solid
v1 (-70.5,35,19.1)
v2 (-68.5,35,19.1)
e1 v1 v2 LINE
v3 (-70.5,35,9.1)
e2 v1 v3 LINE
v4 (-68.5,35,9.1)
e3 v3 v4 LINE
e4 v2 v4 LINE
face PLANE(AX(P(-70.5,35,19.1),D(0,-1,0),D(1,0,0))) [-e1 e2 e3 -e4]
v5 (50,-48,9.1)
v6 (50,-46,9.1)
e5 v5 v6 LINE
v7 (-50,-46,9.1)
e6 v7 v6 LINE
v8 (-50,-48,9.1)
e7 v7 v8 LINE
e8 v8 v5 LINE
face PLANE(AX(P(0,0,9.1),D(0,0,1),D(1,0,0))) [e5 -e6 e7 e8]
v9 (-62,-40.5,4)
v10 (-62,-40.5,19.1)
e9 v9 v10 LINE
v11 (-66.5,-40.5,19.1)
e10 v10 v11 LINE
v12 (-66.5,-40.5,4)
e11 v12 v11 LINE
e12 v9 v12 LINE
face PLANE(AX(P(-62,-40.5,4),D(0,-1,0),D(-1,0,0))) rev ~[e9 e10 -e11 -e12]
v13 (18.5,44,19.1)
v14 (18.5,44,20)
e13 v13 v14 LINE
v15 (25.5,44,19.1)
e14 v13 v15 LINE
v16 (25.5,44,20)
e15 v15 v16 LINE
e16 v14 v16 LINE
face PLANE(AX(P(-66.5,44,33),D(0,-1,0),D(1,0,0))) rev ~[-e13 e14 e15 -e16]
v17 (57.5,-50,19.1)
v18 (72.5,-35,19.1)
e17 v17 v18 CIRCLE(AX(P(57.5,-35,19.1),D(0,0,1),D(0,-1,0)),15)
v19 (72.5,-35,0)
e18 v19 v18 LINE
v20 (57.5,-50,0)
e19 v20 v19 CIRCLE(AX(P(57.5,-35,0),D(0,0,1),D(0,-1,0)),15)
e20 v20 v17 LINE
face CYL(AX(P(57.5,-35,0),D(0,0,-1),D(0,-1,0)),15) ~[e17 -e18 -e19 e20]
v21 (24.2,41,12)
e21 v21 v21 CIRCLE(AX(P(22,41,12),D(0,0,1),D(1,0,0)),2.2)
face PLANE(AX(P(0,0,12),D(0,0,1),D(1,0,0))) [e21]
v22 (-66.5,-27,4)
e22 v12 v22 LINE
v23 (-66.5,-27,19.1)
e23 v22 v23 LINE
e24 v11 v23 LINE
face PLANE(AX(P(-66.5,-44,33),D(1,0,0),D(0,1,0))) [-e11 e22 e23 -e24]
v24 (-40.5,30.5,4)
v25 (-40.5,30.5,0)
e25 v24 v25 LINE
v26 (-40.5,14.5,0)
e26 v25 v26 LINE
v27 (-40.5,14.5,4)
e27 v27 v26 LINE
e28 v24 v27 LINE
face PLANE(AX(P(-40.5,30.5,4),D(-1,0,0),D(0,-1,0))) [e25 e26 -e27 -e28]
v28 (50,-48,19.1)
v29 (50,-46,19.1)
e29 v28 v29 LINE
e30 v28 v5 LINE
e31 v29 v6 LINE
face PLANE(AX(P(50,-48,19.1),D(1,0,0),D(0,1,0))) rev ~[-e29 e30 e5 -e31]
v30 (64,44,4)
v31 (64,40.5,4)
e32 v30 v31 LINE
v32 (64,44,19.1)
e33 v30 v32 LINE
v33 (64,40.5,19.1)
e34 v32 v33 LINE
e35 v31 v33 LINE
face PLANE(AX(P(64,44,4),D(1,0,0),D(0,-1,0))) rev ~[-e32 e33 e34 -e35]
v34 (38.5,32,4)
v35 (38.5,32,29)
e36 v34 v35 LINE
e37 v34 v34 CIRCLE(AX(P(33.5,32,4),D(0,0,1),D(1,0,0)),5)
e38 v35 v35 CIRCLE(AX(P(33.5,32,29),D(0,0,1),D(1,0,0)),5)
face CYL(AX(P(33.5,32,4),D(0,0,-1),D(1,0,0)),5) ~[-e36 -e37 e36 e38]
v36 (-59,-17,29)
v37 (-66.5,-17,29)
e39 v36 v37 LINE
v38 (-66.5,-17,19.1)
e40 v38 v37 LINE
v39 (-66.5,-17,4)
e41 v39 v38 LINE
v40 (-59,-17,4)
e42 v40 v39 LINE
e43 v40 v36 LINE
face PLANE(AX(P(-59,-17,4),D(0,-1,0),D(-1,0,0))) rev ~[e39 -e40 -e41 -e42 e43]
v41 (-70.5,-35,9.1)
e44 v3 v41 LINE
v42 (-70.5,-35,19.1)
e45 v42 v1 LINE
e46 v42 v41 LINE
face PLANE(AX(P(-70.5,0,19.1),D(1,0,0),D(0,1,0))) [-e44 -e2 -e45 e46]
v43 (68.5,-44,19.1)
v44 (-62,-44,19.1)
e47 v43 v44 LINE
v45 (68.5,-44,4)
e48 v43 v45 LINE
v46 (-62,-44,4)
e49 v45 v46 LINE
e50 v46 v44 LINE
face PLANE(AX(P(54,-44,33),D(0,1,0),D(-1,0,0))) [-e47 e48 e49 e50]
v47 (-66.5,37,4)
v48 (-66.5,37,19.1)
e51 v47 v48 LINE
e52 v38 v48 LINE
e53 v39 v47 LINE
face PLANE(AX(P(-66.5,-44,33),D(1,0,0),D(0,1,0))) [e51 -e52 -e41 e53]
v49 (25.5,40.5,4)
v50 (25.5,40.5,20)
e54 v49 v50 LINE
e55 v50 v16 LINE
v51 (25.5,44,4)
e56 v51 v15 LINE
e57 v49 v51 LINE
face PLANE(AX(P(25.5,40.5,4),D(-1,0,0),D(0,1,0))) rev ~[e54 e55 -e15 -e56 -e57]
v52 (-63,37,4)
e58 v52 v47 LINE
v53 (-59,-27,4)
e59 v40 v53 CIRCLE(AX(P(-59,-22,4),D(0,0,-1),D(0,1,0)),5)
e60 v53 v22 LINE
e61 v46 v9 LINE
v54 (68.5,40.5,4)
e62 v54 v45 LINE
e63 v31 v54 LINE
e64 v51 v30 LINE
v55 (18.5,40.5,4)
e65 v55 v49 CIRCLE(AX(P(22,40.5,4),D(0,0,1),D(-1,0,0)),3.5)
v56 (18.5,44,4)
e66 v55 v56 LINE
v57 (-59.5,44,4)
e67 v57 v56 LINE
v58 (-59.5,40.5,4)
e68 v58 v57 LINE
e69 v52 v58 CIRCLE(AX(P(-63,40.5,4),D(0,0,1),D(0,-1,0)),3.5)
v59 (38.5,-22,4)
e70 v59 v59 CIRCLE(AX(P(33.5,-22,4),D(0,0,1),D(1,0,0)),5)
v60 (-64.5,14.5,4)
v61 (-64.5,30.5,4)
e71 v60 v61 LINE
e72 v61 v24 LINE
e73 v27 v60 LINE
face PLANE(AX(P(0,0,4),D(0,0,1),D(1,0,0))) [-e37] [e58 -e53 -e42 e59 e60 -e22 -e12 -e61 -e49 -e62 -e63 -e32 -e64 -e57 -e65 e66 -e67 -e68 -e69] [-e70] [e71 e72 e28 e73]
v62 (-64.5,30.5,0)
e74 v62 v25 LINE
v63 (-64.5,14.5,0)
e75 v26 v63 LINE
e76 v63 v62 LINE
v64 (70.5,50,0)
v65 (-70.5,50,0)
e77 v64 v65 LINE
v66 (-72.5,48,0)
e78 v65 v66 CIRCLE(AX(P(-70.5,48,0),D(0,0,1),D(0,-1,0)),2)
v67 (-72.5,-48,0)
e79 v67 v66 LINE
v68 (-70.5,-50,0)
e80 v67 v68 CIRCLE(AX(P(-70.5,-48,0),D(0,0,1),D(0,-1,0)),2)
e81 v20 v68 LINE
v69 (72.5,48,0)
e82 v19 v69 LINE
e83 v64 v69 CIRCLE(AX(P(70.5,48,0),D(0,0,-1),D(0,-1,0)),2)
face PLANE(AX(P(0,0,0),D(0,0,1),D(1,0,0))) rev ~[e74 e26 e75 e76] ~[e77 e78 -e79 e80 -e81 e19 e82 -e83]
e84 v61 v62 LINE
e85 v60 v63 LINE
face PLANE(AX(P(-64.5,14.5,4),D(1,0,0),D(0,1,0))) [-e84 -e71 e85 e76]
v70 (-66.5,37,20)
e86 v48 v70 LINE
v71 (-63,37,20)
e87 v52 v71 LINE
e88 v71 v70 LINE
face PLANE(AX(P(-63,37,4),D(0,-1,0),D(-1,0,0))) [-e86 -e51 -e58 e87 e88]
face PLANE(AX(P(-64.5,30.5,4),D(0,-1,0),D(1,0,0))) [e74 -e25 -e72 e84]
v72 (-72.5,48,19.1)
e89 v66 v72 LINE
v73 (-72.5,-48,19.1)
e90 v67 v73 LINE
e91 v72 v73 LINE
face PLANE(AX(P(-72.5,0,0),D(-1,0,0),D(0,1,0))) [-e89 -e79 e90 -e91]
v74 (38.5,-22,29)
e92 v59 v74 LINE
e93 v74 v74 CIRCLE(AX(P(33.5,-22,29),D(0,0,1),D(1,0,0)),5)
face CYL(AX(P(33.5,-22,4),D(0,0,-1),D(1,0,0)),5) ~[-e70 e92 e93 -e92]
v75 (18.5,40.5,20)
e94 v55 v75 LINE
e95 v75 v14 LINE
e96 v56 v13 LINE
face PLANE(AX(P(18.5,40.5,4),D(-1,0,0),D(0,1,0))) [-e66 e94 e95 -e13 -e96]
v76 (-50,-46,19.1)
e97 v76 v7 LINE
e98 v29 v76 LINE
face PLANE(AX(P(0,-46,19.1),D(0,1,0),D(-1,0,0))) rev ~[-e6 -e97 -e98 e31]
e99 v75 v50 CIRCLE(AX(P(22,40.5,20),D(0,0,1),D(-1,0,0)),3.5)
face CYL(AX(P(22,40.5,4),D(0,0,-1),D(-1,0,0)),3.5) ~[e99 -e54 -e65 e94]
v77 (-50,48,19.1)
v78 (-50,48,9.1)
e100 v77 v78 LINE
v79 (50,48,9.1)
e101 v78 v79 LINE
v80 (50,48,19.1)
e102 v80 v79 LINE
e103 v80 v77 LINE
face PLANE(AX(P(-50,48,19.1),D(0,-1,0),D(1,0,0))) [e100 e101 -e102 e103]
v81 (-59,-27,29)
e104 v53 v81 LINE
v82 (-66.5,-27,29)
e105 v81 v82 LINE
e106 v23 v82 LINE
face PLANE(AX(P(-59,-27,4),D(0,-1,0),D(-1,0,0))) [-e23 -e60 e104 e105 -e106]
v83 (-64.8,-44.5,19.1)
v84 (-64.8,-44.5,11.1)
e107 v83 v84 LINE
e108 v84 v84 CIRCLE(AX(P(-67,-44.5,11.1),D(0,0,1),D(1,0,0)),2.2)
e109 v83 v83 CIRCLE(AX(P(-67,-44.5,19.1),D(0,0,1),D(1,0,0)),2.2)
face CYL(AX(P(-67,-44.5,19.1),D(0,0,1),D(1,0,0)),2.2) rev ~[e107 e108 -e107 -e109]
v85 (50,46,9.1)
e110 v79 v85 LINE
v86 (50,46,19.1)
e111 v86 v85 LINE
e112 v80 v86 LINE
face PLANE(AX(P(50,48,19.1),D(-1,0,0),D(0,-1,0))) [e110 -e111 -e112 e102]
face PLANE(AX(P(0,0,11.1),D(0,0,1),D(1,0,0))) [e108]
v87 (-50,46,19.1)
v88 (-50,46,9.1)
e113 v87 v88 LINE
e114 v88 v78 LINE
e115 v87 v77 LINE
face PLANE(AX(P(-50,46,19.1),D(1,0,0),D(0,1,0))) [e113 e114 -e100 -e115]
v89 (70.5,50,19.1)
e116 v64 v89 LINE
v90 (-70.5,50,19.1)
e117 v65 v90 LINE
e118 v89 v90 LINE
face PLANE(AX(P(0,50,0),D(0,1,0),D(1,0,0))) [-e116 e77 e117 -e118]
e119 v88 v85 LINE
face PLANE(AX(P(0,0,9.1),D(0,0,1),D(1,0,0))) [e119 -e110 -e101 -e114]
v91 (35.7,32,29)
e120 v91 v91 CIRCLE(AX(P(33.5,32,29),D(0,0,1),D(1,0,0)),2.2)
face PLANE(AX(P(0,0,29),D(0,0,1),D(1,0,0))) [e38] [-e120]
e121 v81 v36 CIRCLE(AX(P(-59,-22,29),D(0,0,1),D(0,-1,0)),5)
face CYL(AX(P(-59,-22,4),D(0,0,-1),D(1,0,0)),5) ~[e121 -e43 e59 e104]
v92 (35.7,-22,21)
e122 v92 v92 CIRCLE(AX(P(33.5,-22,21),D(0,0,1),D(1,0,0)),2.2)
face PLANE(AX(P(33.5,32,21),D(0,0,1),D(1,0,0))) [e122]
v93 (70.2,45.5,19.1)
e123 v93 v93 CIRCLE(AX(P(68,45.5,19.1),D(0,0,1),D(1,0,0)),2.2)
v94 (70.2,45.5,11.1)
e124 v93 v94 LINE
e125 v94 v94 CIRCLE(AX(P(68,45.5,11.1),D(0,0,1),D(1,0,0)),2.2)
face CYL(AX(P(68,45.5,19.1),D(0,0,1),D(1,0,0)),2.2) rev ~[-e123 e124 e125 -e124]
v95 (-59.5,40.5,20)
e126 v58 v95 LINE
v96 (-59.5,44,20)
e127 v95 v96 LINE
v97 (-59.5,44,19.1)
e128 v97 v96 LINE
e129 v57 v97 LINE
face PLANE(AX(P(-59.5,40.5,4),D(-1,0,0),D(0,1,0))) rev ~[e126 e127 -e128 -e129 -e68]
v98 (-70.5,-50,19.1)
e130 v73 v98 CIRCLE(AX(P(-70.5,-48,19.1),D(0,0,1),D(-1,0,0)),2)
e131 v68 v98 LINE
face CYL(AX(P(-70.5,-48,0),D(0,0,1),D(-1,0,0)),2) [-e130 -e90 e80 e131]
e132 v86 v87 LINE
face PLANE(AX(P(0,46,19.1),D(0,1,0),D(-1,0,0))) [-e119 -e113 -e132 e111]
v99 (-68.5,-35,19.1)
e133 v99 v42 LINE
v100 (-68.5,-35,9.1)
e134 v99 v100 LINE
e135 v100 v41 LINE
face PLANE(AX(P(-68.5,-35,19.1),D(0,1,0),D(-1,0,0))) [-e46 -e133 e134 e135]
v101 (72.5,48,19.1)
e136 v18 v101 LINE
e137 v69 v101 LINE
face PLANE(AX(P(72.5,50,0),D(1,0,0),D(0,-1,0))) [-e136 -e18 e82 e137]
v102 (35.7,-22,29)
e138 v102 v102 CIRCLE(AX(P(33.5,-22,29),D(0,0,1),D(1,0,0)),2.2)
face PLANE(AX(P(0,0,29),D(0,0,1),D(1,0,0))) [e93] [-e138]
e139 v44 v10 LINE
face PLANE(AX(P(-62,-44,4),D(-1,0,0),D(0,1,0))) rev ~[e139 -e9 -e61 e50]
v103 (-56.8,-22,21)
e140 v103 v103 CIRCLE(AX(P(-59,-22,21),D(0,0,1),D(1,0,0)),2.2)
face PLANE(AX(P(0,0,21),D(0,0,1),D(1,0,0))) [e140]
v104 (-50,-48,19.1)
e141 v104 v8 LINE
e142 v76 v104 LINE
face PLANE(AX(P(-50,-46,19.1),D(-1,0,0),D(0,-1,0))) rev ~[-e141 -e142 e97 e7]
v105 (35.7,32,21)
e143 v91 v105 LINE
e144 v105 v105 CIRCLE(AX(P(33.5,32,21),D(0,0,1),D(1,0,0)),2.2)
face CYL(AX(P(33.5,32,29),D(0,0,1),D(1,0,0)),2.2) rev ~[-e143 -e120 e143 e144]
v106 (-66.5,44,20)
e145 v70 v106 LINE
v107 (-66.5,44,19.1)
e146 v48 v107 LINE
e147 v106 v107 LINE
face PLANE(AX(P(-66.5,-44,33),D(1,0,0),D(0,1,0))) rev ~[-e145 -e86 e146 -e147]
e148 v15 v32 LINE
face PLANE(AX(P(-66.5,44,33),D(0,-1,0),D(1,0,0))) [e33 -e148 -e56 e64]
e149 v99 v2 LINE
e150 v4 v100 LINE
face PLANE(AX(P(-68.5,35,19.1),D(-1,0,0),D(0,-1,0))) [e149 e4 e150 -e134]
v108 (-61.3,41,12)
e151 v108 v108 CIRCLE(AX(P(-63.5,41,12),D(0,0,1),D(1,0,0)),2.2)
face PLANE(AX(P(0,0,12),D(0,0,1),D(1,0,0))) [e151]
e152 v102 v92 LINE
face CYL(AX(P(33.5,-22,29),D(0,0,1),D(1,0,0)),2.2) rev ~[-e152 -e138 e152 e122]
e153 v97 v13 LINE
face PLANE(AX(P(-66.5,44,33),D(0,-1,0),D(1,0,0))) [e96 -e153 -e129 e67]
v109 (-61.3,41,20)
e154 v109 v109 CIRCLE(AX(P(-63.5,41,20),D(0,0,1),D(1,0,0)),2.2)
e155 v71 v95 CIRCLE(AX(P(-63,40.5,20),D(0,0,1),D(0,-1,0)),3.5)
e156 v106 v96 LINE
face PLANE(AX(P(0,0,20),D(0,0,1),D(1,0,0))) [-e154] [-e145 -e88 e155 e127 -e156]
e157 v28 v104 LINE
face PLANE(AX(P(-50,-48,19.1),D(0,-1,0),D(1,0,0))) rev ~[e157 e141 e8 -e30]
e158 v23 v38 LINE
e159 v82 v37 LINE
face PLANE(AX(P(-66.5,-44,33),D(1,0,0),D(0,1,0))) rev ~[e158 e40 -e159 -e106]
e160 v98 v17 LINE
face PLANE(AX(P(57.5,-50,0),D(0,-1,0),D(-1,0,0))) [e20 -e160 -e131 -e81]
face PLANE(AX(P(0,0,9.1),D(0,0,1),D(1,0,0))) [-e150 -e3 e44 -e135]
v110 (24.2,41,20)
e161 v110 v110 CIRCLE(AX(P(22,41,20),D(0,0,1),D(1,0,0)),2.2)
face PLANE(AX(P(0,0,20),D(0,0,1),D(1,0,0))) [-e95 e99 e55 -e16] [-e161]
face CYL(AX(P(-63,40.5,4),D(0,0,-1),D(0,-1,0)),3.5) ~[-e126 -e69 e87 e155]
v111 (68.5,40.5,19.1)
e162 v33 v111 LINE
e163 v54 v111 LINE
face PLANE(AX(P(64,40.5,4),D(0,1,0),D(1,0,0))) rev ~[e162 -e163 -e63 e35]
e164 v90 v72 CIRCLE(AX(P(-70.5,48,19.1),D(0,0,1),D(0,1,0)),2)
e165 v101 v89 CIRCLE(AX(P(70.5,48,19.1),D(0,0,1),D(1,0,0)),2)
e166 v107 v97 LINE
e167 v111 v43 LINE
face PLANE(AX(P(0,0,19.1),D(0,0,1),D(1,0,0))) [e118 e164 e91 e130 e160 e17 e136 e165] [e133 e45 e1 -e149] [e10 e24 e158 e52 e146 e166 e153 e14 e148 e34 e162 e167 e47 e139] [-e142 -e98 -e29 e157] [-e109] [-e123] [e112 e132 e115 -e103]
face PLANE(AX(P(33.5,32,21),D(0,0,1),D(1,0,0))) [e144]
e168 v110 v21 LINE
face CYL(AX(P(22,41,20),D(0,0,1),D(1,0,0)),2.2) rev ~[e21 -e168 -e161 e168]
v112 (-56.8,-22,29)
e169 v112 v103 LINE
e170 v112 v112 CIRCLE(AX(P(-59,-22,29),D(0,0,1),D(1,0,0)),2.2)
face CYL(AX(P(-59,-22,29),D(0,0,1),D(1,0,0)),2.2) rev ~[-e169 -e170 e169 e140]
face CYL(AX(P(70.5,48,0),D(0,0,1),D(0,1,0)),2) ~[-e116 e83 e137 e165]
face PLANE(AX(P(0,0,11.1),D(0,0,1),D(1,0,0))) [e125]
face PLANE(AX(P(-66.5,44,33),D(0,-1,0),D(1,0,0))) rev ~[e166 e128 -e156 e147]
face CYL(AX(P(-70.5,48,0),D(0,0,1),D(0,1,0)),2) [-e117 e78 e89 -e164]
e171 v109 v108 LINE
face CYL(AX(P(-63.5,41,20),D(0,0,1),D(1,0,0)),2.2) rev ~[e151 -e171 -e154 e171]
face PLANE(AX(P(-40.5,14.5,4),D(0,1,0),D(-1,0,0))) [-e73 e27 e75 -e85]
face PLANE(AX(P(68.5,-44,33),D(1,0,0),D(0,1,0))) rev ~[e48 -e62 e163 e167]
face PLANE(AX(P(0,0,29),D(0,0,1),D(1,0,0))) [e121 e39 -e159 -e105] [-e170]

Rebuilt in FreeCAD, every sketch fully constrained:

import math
import FreeCAD as App
import Part
import Sketcher


def edges_at(feature, points):
    """Names of the edges that pass closest to the given points."""
    edges = feature.Shape.Edges
    near = lambda p: min(range(len(edges)), key=lambda i: edges[i].distToShape(Part.Vertex(*p))[0])
    return sorted({f"Edge{near(p) + 1}" for p in points})


def add_polygon(sketch, points):
    """Adds a closed chain of lines whose ends are joined by coincident constraints."""
    first, n = sketch.GeometryCount, len(points)
    for a, b in zip(points, points[1:] + points[:1]):
        sketch.addGeometry(Part.LineSegment(App.Vector(*a, 0), App.Vector(*b, 0)), False)
    for i in range(n):
        sketch.addConstraint(Sketcher.Constraint("Coincident", first + i, 2, first + (i + 1) % n, 1))

doc = App.newDocument("Part")
body = doc.addObject("PartDesign::Body", "Body")

# Sketch on XY plane
sketch1 = body.newObject("Sketcher::SketchObject", "Sketch")
sketch1.AttachmentSupport = (doc.getObject("XY_Plane"), [""])
sketch1.MapMode = "FlatFace"
sketch1.addGeometry(Part.LineSegment(App.Vector(72, 50, 0), App.Vector(-72, 50, 0)), False)
sketch1.addGeometry(Part.LineSegment(App.Vector(-72, 50, 0), App.Vector(-72, -50, 0)), False)
sketch1.addGeometry(Part.LineSegment(App.Vector(-72, -50, 0), App.Vector(58, -50, 0)), False)
sketch1.addGeometry(Part.ArcOfCircle(Part.Circle(App.Vector(58, -35, 0), App.Vector(0, 0, 1), 15), math.radians(-90), math.radians(0)), False)
sketch1.addGeometry(Part.LineSegment(App.Vector(72, -35, 0), App.Vector(72, 50, 0)), False)
sketch1.addConstraint(Sketcher.Constraint("Coincident", 0, 2, 1, 1))
sketch1.addConstraint(Sketcher.Constraint("Coincident", 1, 2, 2, 1))
sketch1.addConstraint(Sketcher.Constraint("Tangent", 2, 2, 3, 1))
sketch1.addConstraint(Sketcher.Constraint("Tangent", 3, 2, 4, 1))
sketch1.addConstraint(Sketcher.Constraint("Coincident", 4, 2, 0, 1))
sketch1.addConstraint(Sketcher.Constraint("Horizontal", 0))
sketch1.addConstraint(Sketcher.Constraint("Vertical", 1))
sketch1.addConstraint(Sketcher.Constraint("Horizontal", 2))
sketch1.addConstraint(Sketcher.Constraint("Vertical", 4))
sketch1.addConstraint(Sketcher.Constraint("Symmetric", 1, 2, 4, 2, -1, 1))
sketch1.addConstraint(Sketcher.Constraint("Radius", 3, 15.0))
sketch1.addConstraint(Sketcher.Constraint("DistanceX", 2, 1, 2, 2, 130.0))
sketch1.addConstraint(Sketcher.Constraint("DistanceY", 1, 2, 1, 1, 100.0))
pad1 = body.newObject("PartDesign::Pad", "Pad")
pad1.Profile = sketch1
pad1.Length = 33

# Sketch on XY plane
sketch2 = body.newObject("Sketcher::SketchObject", "Sketch001")
sketch2.AttachmentSupport = (doc.getObject("XY_Plane"), [""])
sketch2.MapMode = "FlatFace"
sketch2.AttachmentOffset = App.Placement(App.Vector(0, 0, 33), App.Rotation())
add_polygon(sketch2, [(68, 44), (-66, 44), (-66, -44), (68, -44)])  # lines 0-3
sketch2.addConstraint(Sketcher.Constraint("Horizontal", 0))
sketch2.addConstraint(Sketcher.Constraint("Vertical", 1))
sketch2.addConstraint(Sketcher.Constraint("Horizontal", 2))
sketch2.addConstraint(Sketcher.Constraint("Vertical", 3))
sketch2.addConstraint(Sketcher.Constraint("DistanceX", 0, 2, 0, 1, 135.0))
sketch2.addConstraint(Sketcher.Constraint("DistanceY", 1, 2, 1, 1, 88.0))
sketch2.addConstraint(Sketcher.Constraint("DistanceY", -1, 1, 0, 2, 44.0))
sketch2.addConstraint(Sketcher.Constraint("DistanceX", 0, 2, -1, 1, 66.5))
pocket1 = body.newObject("PartDesign::Pocket", "Pocket")
pocket1.Profile = sketch2
pocket1.Length = 29
doc.recompute()

fillet = body.newObject("PartDesign::Fillet", "Fillet")
fillet.Base = (pocket1, edges_at(pocket1, [(72.5, 50, 16.5)]))
fillet.Radius = 2
doc.recompute()

fillet2 = body.newObject("PartDesign::Fillet", "Fillet001")
fillet2.Base = (fillet, edges_at(fillet, [(-72.5, 50, 16.5), (-72.5, -50, 16.5)]))
fillet2.Radius = 2

# Sketch on XY plane
sketch3 = body.newObject("Sketcher::SketchObject", "Sketch002")
sketch3.AttachmentSupport = (doc.getObject("XY_Plane"), [""])
sketch3.MapMode = "FlatFace"
sketch3.AttachmentOffset = App.Placement(App.Vector(0, 0, 4), App.Rotation())
sketch3.addGeometry(Part.LineSegment(App.Vector(25.5, 40.5, 0), App.Vector(25.5, 44, 0)), False)
sketch3.addGeometry(Part.LineSegment(App.Vector(25.5, 44, 0), App.Vector(18.5, 44, 0)), False)
sketch3.addGeometry(Part.LineSegment(App.Vector(18.5, 44, 0), App.Vector(18.5, 40.5, 0)), False)
sketch3.addGeometry(Part.ArcOfCircle(Part.Circle(App.Vector(22, 40.5, 0), App.Vector(0, 0, 1), 3.5), math.radians(180), math.radians(360)), False)
sketch3.addGeometry(Part.LineSegment(App.Vector(-59.5, 40.5, 0), App.Vector(-59.5, 44, 0)), False)
sketch3.addGeometry(Part.LineSegment(App.Vector(-59.5, 44, 0), App.Vector(-66.5, 44, 0)), False)
sketch3.addGeometry(Part.LineSegment(App.Vector(-66.5, 44, 0), App.Vector(-66.5, 37, 0)), False)
sketch3.addGeometry(Part.LineSegment(App.Vector(-66.5, 37, 0), App.Vector(-63, 37, 0)), False)
sketch3.addGeometry(Part.ArcOfCircle(Part.Circle(App.Vector(-63, 40.5, 0), App.Vector(0, 0, 1), 3.5), math.radians(-90), math.radians(0)), False)
sketch3.addConstraint(Sketcher.Constraint("Coincident", 0, 2, 1, 1))
sketch3.addConstraint(Sketcher.Constraint("Coincident", 1, 2, 2, 1))
sketch3.addConstraint(Sketcher.Constraint("Tangent", 2, 2, 3, 1))
sketch3.addConstraint(Sketcher.Constraint("Tangent", 3, 2, 0, 1))
sketch3.addConstraint(Sketcher.Constraint("Coincident", 4, 2, 5, 1))
sketch3.addConstraint(Sketcher.Constraint("Coincident", 5, 2, 6, 1))
sketch3.addConstraint(Sketcher.Constraint("Coincident", 6, 2, 7, 1))
sketch3.addConstraint(Sketcher.Constraint("Tangent", 7, 2, 8, 1))
sketch3.addConstraint(Sketcher.Constraint("Tangent", 8, 2, 4, 1))
sketch3.addConstraint(Sketcher.Constraint("Vertical", 0))
sketch3.addConstraint(Sketcher.Constraint("Horizontal", 1))
sketch3.addConstraint(Sketcher.Constraint("Vertical", 2))
sketch3.addConstraint(Sketcher.Constraint("Vertical", 4))
sketch3.addConstraint(Sketcher.Constraint("Horizontal", 5))
sketch3.addConstraint(Sketcher.Constraint("Vertical", 6))
sketch3.addConstraint(Sketcher.Constraint("Horizontal", 7))
sketch3.addConstraint(Sketcher.Constraint("Equal", 3, 8))
sketch3.addConstraint(Sketcher.Constraint("Horizontal", 3, 3, 8, 3))
sketch3.addConstraint(Sketcher.Constraint("Horizontal", 1, 2, 4, 2))
sketch3.addConstraint(Sketcher.Constraint("Equal", 1, 5))
sketch3.addConstraint(Sketcher.Constraint("Equal", 7, 0))
sketch3.addConstraint(Sketcher.Constraint("Radius", 3, 3.5))
sketch3.addConstraint(Sketcher.Constraint("DistanceX", 8, 3, 3, 3, 85.0))
sketch3.addConstraint(Sketcher.Constraint("DistanceX", -1, 1, 3, 3, 22.0))
sketch3.addConstraint(Sketcher.Constraint("DistanceY", -1, 1, 0, 2, 44.0))
pad2 = body.newObject("PartDesign::Pad", "Pad001")
pad2.Profile = sketch3
pad2.Length = 16

# Sketch on XY plane
sketch4 = body.newObject("Sketcher::SketchObject", "Sketch003")
sketch4.AttachmentSupport = (doc.getObject("XY_Plane"), [""])
sketch4.MapMode = "FlatFace"
sketch4.AttachmentOffset = App.Placement(App.Vector(0, 0, 4), App.Rotation())
sketch4.addGeometry(Part.LineSegment(App.Vector(-66, -17, 0), App.Vector(-66, -27, 0)), False)
sketch4.addGeometry(Part.LineSegment(App.Vector(-66, -27, 0), App.Vector(-59, -27, 0)), False)
sketch4.addGeometry(Part.ArcOfCircle(Part.Circle(App.Vector(-59, -22, 0), App.Vector(0, 0, 1), 5), math.radians(-90), math.radians(90)), False)
sketch4.addGeometry(Part.LineSegment(App.Vector(-59, -17, 0), App.Vector(-66, -17, 0)), False)
sketch4.addGeometry(Part.Circle(App.Vector(34, 32, 0), App.Vector(0, 0, 1), 5), False)
sketch4.addGeometry(Part.Circle(App.Vector(34, -22, 0), App.Vector(0, 0, 1), 5), False)
sketch4.addConstraint(Sketcher.Constraint("Coincident", 0, 2, 1, 1))
sketch4.addConstraint(Sketcher.Constraint("Tangent", 1, 2, 2, 1))
sketch4.addConstraint(Sketcher.Constraint("Tangent", 2, 2, 3, 1))
sketch4.addConstraint(Sketcher.Constraint("Coincident", 3, 2, 0, 1))
sketch4.addConstraint(Sketcher.Constraint("Vertical", 0))
sketch4.addConstraint(Sketcher.Constraint("Horizontal", 1))
sketch4.addConstraint(Sketcher.Constraint("Horizontal", 3))
sketch4.addConstraint(Sketcher.Constraint("Equal", 2, 4))
sketch4.addConstraint(Sketcher.Constraint("Equal", 4, 5))
sketch4.addConstraint(Sketcher.Constraint("Horizontal", 2, 3, 5, 3))
sketch4.addConstraint(Sketcher.Constraint("Vertical", 4, 3, 5, 3))
sketch4.addConstraint(Sketcher.Constraint("Diameter", 4, 10.0))
sketch4.addConstraint(Sketcher.Constraint("DistanceX", 1, 1, 1, 2, 7.5))
sketch4.addConstraint(Sketcher.Constraint("DistanceY", 2, 3, 4, 3, 54.0))
sketch4.addConstraint(Sketcher.Constraint("DistanceX", 0, 2, 5, 3, 100.0))
sketch4.addConstraint(Sketcher.Constraint("DistanceX", 2, 3, -1, 1, 59.0))
sketch4.addConstraint(Sketcher.Constraint("DistanceY", 2, 3, -1, 1, 22.0))
pad3 = body.newObject("PartDesign::Pad", "Pad002")
pad3.Profile = sketch4
pad3.Length = 25

# Sketch on XY plane
sketch5 = body.newObject("Sketcher::SketchObject", "Sketch004")
sketch5.AttachmentSupport = (doc.getObject("XY_Plane"), [""])
sketch5.MapMode = "FlatFace"
sketch5.AttachmentOffset = App.Placement(App.Vector(0, 0, 4), App.Rotation())
add_polygon(sketch5, [(-40, 30), (-64, 30), (-64, 14), (-40, 14)])  # lines 0-3
sketch5.addConstraint(Sketcher.Constraint("Horizontal", 0))
sketch5.addConstraint(Sketcher.Constraint("Vertical", 1))
sketch5.addConstraint(Sketcher.Constraint("Horizontal", 2))
sketch5.addConstraint(Sketcher.Constraint("Vertical", 3))
sketch5.addConstraint(Sketcher.Constraint("DistanceX", 0, 2, 0, 1, 24.0))
sketch5.addConstraint(Sketcher.Constraint("DistanceY", 1, 2, 1, 1, 16.0))
sketch5.addConstraint(Sketcher.Constraint("DistanceX", 0, 2, -1, 1, 64.5))
sketch5.addConstraint(Sketcher.Constraint("DistanceY", -1, 1, 0, 2, 30.5))
pocket2 = body.newObject("PartDesign::Pocket", "Pocket001")
pocket2.Profile = sketch5
pocket2.Length = 33

# Sketch on XY plane
sketch6 = body.newObject("Sketcher::SketchObject", "Sketch005")
sketch6.AttachmentSupport = (doc.getObject("XY_Plane"), [""])
sketch6.MapMode = "FlatFace"
sketch6.AttachmentOffset = App.Placement(App.Vector(0, 0, 33), App.Rotation())
sketch6.addGeometry(Part.ArcOfCircle(Part.Circle(App.Vector(-70.5, -48, 0), App.Vector(0, 0, 1), 2), math.radians(180), math.radians(270)), False)  # 0
sketch6.addGeometry(Part.LineSegment(App.Vector(-70.5, -50, 0), App.Vector(57.5, -50, 0)), False)  # 1
sketch6.addGeometry(Part.ArcOfCircle(Part.Circle(App.Vector(57.5, -35, 0), App.Vector(0, 0, 1), 15), math.radians(-90), math.radians(0)), False)  # 2
sketch6.addGeometry(Part.LineSegment(App.Vector(72.5, -35, 0), App.Vector(72.5, 48, 0)), False)  # 3
sketch6.addGeometry(Part.ArcOfCircle(Part.Circle(App.Vector(70.5, 48, 0), App.Vector(0, 0, 1), 2), math.radians(0), math.radians(90)), False)  # 4
sketch6.addGeometry(Part.LineSegment(App.Vector(70.5, 50, 0), App.Vector(-70.5, 50, 0)), False)  # 5
sketch6.addGeometry(Part.ArcOfCircle(Part.Circle(App.Vector(-70.5, 48, 0), App.Vector(0, 0, 1), 2), math.radians(90), math.radians(180)), False)  # 6
sketch6.addGeometry(Part.LineSegment(App.Vector(-72.5, 48, 0), App.Vector(-72.5, -48, 0)), False)  # 7
add_polygon(sketch6, [(68.5, 44), (68.5, -44), (-66.5, -44), (-66.5, 44)])  # lines 8-11
sketch6.addConstraint(Sketcher.Constraint("Tangent", 0, 2, 1, 1))
sketch6.addConstraint(Sketcher.Constraint("Tangent", 1, 2, 2, 1))
sketch6.addConstraint(Sketcher.Constraint("Tangent", 2, 2, 3, 1))
sketch6.addConstraint(Sketcher.Constraint("Tangent", 3, 2, 4, 1))
sketch6.addConstraint(Sketcher.Constraint("Tangent", 4, 2, 5, 1))
sketch6.addConstraint(Sketcher.Constraint("Tangent", 5, 2, 6, 1))
sketch6.addConstraint(Sketcher.Constraint("Tangent", 6, 2, 7, 1))
sketch6.addConstraint(Sketcher.Constraint("Tangent", 7, 2, 0, 1))
sketch6.addConstraint(Sketcher.Constraint("Horizontal", 1))
sketch6.addConstraint(Sketcher.Constraint("Vertical", 3))
sketch6.addConstraint(Sketcher.Constraint("Horizontal", 5))
sketch6.addConstraint(Sketcher.Constraint("Vertical", 7))
sketch6.addConstraint(Sketcher.Constraint("Vertical", 8))
sketch6.addConstraint(Sketcher.Constraint("Horizontal", 9))
sketch6.addConstraint(Sketcher.Constraint("Vertical", 10))
sketch6.addConstraint(Sketcher.Constraint("Horizontal", 11))
sketch6.addConstraint(Sketcher.Constraint("Equal", 0, 4))
sketch6.addConstraint(Sketcher.Constraint("Equal", 4, 6))
sketch6.addConstraint(Sketcher.Constraint("Symmetric", 0, 3, 4, 3, -1, 1))
sketch6.addConstraint(Sketcher.Constraint("Radius", 0, 2.0))
sketch6.addConstraint(Sketcher.Constraint("Radius", 2, 15.0))
sketch6.addConstraint(Sketcher.Constraint("DistanceX", 1, 1, 1, 2, 128.0))
sketch6.addConstraint(Sketcher.Constraint("DistanceX", 9, 2, 9, 1, 135.0))
sketch6.addConstraint(Sketcher.Constraint("DistanceY", 3, 1, 3, 2, 83.0))
sketch6.addConstraint(Sketcher.Constraint("DistanceY", 8, 2, 8, 1, 88.0))
sketch6.addConstraint(Sketcher.Constraint("DistanceY", 8, 2, -1, 1, 44.0))
sketch6.addConstraint(Sketcher.Constraint("DistanceX", 8, 2, 2, 2, 4.0))
pocket3 = body.newObject("PartDesign::Pocket", "Pocket002")
pocket3.Profile = sketch6
pocket3.Length = 13.9

# Sketch on XY plane
sketch7 = body.newObject("Sketcher::SketchObject", "Sketch006")
sketch7.AttachmentSupport = (doc.getObject("XY_Plane"), [""])
sketch7.MapMode = "FlatFace"
sketch7.AttachmentOffset = App.Placement(App.Vector(0, 0, 20), App.Rotation())
sketch7.addGeometry(Part.Circle(App.Vector(-63.5, 41, 0), App.Vector(0, 0, 1), 2.2), False)
sketch7.addGeometry(Part.Circle(App.Vector(22, 41, 0), App.Vector(0, 0, 1), 2.2), False)
sketch7.addConstraint(Sketcher.Constraint("Equal", 0, 1))
sketch7.addConstraint(Sketcher.Constraint("Horizontal", 0, 3, 1, 3))
sketch7.addConstraint(Sketcher.Constraint("Diameter", 0, 4.4))
sketch7.addConstraint(Sketcher.Constraint("DistanceY", -1, 1, 0, 3, 41.0))
sketch7.addConstraint(Sketcher.Constraint("DistanceX", -1, 1, 1, 3, 22.0))
sketch7.addConstraint(Sketcher.Constraint("DistanceX", 0, 3, -1, 1, 63.5))
pocket4 = body.newObject("PartDesign::Pocket", "Pocket003")
pocket4.Profile = sketch7
pocket4.Length = 8

# Sketch on XY plane
sketch8 = body.newObject("Sketcher::SketchObject", "Sketch007")
sketch8.AttachmentSupport = (doc.getObject("XY_Plane"), [""])
sketch8.MapMode = "FlatFace"
sketch8.AttachmentOffset = App.Placement(App.Vector(0, 0, 29), App.Rotation())
sketch8.addGeometry(Part.Circle(App.Vector(33.5, 32, 0), App.Vector(0, 0, 1), 2.2), False)
sketch8.addGeometry(Part.Circle(App.Vector(33.5, -22, 0), App.Vector(0, 0, 1), 2.2), False)
sketch8.addConstraint(Sketcher.Constraint("Equal", 0, 1))
sketch8.addConstraint(Sketcher.Constraint("Vertical", 0, 3, 1, 3))
sketch8.addConstraint(Sketcher.Constraint("Diameter", 0, 4.4))
sketch8.addConstraint(Sketcher.Constraint("DistanceY", -1, 1, 0, 3, 32.0))
sketch8.addConstraint(Sketcher.Constraint("DistanceY", 1, 3, -1, 1, 22.0))
sketch8.addConstraint(Sketcher.Constraint("DistanceX", -1, 1, 0, 3, 33.5))
pocket5 = body.newObject("PartDesign::Pocket", "Pocket004")
pocket5.Profile = sketch8
pocket5.Length = 8

# Sketch on XY plane
sketch9 = body.newObject("Sketcher::SketchObject", "Sketch008")
sketch9.AttachmentSupport = (doc.getObject("XY_Plane"), [""])
sketch9.MapMode = "FlatFace"
sketch9.AttachmentOffset = App.Placement(App.Vector(0, 0, 29), App.Rotation())
sketch9.addGeometry(Part.Circle(App.Vector(-59, -22, 0), App.Vector(0, 0, 1), 2.2), False)
sketch9.addConstraint(Sketcher.Constraint("Diameter", 0, 4.4))
sketch9.addConstraint(Sketcher.Constraint("DistanceX", 0, 3, -1, 1, 59.0))
sketch9.addConstraint(Sketcher.Constraint("DistanceY", 0, 3, -1, 1, 22.0))
pocket6 = body.newObject("PartDesign::Pocket", "Pocket005")
pocket6.Profile = sketch9
pocket6.Length = 8

# Sketch on XY plane
sketch10 = body.newObject("Sketcher::SketchObject", "Sketch009")
sketch10.AttachmentSupport = (doc.getObject("XY_Plane"), [""])
sketch10.MapMode = "FlatFace"
sketch10.AttachmentOffset = App.Placement(App.Vector(0, 0, 19.1), App.Rotation())
add_polygon(sketch10, [(-50, 46), (50, 46), (50, 48), (-50, 48)])  # lines 0-3
add_polygon(sketch10, [(-70.5, 35), (-70.5, -35), (-68.5, -35), (-68.5, 35)])  # lines 4-7
add_polygon(sketch10, [(-50, -48), (50, -48), (50, -46), (-50, -46)])  # lines 8-11
sketch10.addConstraint(Sketcher.Constraint("Horizontal", 0))
sketch10.addConstraint(Sketcher.Constraint("Vertical", 1))
sketch10.addConstraint(Sketcher.Constraint("Horizontal", 2))
sketch10.addConstraint(Sketcher.Constraint("Vertical", 3))
sketch10.addConstraint(Sketcher.Constraint("Vertical", 4))
sketch10.addConstraint(Sketcher.Constraint("Horizontal", 5))
sketch10.addConstraint(Sketcher.Constraint("Vertical", 6))
sketch10.addConstraint(Sketcher.Constraint("Horizontal", 7))
sketch10.addConstraint(Sketcher.Constraint("Horizontal", 8))
sketch10.addConstraint(Sketcher.Constraint("Vertical", 9))
sketch10.addConstraint(Sketcher.Constraint("Horizontal", 10))
sketch10.addConstraint(Sketcher.Constraint("Vertical", 11))
sketch10.addConstraint(Sketcher.Constraint("Symmetric", 2, 2, 8, 2, -1, 1))
sketch10.addConstraint(Sketcher.Constraint("Symmetric", 0, 2, 10, 2, -1, 1))
sketch10.addConstraint(Sketcher.Constraint("Vertical", 1, 2, 8, 2))
sketch10.addConstraint(Sketcher.Constraint("Equal", 7, 1))
sketch10.addConstraint(Sketcher.Constraint("DistanceX", 0, 1, 0, 2, 100.0))
sketch10.addConstraint(Sketcher.Constraint("DistanceX", 5, 1, 5, 2, 2.0))
sketch10.addConstraint(Sketcher.Constraint("DistanceY", 4, 2, 4, 1, 70.0))
sketch10.addConstraint(Sketcher.Constraint("DistanceY", -1, 1, 0, 2, 46.0))
sketch10.addConstraint(Sketcher.Constraint("DistanceY", 4, 2, -1, 1, 35.0))
sketch10.addConstraint(Sketcher.Constraint("DistanceX", 4, 2, -1, 1, 70.5))
pocket7 = body.newObject("PartDesign::Pocket", "Pocket006")
pocket7.Profile = sketch10
pocket7.Length = 10

# Sketch on XY plane
sketch11 = body.newObject("Sketcher::SketchObject", "Sketch010")
sketch11.AttachmentSupport = (doc.getObject("XY_Plane"), [""])
sketch11.MapMode = "FlatFace"
sketch11.AttachmentOffset = App.Placement(App.Vector(0, 0, 4), App.Rotation())
add_polygon(sketch11, [(-62, -40.5), (-66.5, -40.5), (-66.5, -44), (-62, -44)])  # lines 0-3
add_polygon(sketch11, [(68.5, 44), (64, 44), (64, 40.5), (68.5, 40.5)])  # lines 4-7
sketch11.addConstraint(Sketcher.Constraint("Horizontal", 0))
sketch11.addConstraint(Sketcher.Constraint("Vertical", 1))
sketch11.addConstraint(Sketcher.Constraint("Horizontal", 2))
sketch11.addConstraint(Sketcher.Constraint("Vertical", 3))
sketch11.addConstraint(Sketcher.Constraint("Horizontal", 4))
sketch11.addConstraint(Sketcher.Constraint("Vertical", 5))
sketch11.addConstraint(Sketcher.Constraint("Horizontal", 6))
sketch11.addConstraint(Sketcher.Constraint("Vertical", 7))
sketch11.addConstraint(Sketcher.Constraint("Equal", 2, 4))
sketch11.addConstraint(Sketcher.Constraint("Equal", 3, 5))
sketch11.addConstraint(Sketcher.Constraint("DistanceX", 0, 2, 0, 1, 4.5))
sketch11.addConstraint(Sketcher.Constraint("DistanceY", 1, 2, 1, 1, 3.5))
sketch11.addConstraint(Sketcher.Constraint("DistanceY", 1, 2, -1, 1, 44.0))
sketch11.addConstraint(Sketcher.Constraint("DistanceX", 2, 2, -1, 1, 62.0))
sketch11.addConstraint(Sketcher.Constraint("DistanceX", -1, 1, 4, 2, 64.0))
sketch11.addConstraint(Sketcher.Constraint("DistanceY", -1, 1, 4, 2, 44.0))
pad4 = body.newObject("PartDesign::Pad", "Pad003")
pad4.Profile = sketch11
pad4.Length = 15.1

# Sketch on XY plane
sketch12 = body.newObject("Sketcher::SketchObject", "Sketch011")
sketch12.AttachmentSupport = (doc.getObject("XY_Plane"), [""])
sketch12.MapMode = "FlatFace"
sketch12.AttachmentOffset = App.Placement(App.Vector(0, 0, 19.1), App.Rotation())
sketch12.addGeometry(Part.Circle(App.Vector(-67, -44.5, 0), App.Vector(0, 0, 1), 2.2), False)
sketch12.addGeometry(Part.Circle(App.Vector(68, 45.5, 0), App.Vector(0, 0, 1), 2.2), False)
sketch12.addConstraint(Sketcher.Constraint("Equal", 0, 1))
sketch12.addConstraint(Sketcher.Constraint("Diameter", 0, 4.4))
sketch12.addConstraint(Sketcher.Constraint("DistanceX", 0, 3, -1, 1, 67.0))
sketch12.addConstraint(Sketcher.Constraint("DistanceX", -1, 1, 1, 3, 68.0))
sketch12.addConstraint(Sketcher.Constraint("DistanceY", 0, 3, 1, 3, 90.0))
sketch12.addConstraint(Sketcher.Constraint("DistanceY", 0, 3, -1, 1, 44.5))
pocket8 = body.newObject("PartDesign::Pocket", "Pocket007")
pocket8.Profile = sketch12
pocket8.Length = 8

doc.recompute()
